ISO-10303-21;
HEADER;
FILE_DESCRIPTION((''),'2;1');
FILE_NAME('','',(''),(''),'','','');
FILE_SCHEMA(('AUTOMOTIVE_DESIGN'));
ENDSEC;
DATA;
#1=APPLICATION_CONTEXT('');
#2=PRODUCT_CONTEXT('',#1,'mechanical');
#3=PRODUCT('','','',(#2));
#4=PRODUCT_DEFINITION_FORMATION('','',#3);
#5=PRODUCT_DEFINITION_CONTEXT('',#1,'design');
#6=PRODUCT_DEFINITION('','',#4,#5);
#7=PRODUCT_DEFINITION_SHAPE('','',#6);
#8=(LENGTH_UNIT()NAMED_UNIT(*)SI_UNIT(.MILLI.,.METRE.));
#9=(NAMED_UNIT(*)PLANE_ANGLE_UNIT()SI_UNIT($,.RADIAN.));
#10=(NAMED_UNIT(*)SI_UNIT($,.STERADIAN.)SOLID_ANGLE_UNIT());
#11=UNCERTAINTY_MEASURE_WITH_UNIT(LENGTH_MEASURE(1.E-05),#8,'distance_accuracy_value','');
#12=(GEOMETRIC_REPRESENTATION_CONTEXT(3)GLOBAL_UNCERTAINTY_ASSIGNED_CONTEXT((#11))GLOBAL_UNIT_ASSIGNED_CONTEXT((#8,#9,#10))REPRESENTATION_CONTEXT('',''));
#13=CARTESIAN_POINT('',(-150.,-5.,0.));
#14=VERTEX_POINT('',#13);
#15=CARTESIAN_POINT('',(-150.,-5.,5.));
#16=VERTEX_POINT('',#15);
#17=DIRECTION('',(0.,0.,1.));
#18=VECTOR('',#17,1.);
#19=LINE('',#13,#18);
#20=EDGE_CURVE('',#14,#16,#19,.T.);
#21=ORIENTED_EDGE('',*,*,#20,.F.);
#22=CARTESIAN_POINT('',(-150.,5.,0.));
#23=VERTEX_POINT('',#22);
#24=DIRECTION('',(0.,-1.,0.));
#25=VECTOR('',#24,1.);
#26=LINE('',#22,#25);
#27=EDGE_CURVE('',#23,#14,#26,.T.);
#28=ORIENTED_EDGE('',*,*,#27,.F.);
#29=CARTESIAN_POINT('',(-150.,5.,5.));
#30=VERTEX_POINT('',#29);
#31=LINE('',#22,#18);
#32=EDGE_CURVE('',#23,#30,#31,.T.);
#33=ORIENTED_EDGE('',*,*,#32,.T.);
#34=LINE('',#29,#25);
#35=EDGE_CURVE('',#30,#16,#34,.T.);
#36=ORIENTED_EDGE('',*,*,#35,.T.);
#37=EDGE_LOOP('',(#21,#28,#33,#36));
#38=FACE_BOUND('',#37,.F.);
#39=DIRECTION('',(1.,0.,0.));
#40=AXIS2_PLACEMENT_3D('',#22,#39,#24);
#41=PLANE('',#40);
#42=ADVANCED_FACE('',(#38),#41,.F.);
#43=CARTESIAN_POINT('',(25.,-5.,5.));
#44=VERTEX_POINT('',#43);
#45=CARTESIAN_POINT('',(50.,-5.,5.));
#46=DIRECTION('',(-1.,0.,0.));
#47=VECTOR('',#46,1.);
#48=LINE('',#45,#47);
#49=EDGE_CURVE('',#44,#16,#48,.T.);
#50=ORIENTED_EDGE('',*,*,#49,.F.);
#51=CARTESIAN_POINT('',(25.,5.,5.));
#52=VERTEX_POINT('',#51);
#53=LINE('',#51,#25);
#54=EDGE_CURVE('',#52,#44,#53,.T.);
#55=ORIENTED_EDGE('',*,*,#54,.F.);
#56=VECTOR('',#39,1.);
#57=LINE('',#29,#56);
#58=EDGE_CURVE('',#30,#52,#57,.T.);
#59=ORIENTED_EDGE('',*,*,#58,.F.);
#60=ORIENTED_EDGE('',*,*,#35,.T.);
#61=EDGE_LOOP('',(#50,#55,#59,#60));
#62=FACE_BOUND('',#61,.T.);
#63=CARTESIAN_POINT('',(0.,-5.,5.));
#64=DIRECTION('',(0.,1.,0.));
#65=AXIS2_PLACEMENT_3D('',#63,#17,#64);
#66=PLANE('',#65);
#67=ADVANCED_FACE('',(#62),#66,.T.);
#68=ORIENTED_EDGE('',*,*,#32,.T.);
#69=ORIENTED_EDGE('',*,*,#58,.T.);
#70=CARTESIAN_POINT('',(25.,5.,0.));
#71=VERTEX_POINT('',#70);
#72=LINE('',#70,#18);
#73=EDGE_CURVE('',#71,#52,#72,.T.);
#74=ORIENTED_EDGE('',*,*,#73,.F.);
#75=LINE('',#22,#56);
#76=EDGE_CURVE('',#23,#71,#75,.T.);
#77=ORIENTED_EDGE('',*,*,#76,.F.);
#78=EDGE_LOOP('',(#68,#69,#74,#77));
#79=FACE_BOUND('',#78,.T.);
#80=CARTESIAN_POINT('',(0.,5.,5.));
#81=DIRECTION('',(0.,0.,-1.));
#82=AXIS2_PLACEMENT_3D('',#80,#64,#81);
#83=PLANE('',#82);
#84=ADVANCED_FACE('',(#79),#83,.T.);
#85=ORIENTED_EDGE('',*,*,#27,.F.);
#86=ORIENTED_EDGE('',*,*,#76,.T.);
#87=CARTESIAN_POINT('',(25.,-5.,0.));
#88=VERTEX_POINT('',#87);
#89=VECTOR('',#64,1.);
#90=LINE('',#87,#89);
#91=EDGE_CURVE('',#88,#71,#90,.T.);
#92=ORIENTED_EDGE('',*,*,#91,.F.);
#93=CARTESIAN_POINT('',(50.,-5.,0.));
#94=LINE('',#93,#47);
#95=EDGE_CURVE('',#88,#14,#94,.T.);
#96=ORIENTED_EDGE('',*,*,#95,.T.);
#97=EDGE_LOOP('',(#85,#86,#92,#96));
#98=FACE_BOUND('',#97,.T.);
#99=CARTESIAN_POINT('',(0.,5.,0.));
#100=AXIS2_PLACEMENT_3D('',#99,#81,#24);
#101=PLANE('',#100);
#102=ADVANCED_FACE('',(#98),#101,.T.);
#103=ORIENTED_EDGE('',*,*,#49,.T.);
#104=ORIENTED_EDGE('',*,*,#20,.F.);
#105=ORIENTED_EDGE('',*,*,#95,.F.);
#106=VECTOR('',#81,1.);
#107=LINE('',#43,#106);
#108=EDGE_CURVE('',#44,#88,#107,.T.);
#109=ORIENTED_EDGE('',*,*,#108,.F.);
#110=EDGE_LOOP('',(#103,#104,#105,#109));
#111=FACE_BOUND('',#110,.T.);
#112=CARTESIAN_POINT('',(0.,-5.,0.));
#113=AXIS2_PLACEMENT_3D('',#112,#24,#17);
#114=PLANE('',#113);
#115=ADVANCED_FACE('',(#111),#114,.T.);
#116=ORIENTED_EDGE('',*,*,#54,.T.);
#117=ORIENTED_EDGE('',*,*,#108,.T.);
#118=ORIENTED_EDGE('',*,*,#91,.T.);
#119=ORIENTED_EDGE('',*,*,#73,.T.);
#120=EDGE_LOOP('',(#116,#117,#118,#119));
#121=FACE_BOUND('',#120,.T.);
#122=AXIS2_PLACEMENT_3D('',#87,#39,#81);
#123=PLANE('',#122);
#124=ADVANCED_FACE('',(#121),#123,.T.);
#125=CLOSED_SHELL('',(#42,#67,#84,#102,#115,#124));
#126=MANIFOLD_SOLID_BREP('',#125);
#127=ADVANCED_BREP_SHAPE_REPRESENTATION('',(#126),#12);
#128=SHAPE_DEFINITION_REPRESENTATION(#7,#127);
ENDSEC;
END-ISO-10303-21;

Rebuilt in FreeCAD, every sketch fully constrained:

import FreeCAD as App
import Part
import Sketcher
from FreeCAD import Vector


def add_polygon(sketch, points):
    """Adds a closed chain of lines whose ends are joined by coincident constraints."""
    first, n = sketch.GeometryCount, len(points)
    for a, b in zip(points, points[1:] + points[:1]):
        sketch.addGeometry(Part.LineSegment(App.Vector(*a, 0), App.Vector(*b, 0)), False)
    for i in range(n):
        sketch.addConstraint(Sketcher.Constraint("Coincident", first + i, 2, first + (i + 1) % n, 1))

doc = App.newDocument("Part")
body = doc.addObject("PartDesign::Body", "Body")

sketch1 = body.newObject("Sketcher::SketchObject", "Sketch")
sketch1.AttachmentSupport = (doc.getObject("XY_Plane"), [""])
sketch1.MapMode = "FlatFace"
add_polygon(sketch1, [(150, -5), (150, 5), (-150, 5), (-150, -5)])
sketch1.addConstraint([
    Sketcher.Constraint("Vertical", 0),
    Sketcher.Constraint("Horizontal", 1),
    Sketcher.Constraint("Vertical", 2),
    Sketcher.Constraint("Horizontal", 3),
    Sketcher.Constraint("Symmetric", 0, 2, 2, 2, -1, 1),
    Sketcher.Constraint("DistanceX", 1, 2, 1, 1, 300.0),
    Sketcher.Constraint("DistanceY", 0, 1, 0, 2, 10.0),
])
pad1 = body.newObject("PartDesign::Pad", "Pad")
pad1.Profile = sketch1
pad1.Length = 5

sketch2 = body.newObject("Sketcher::SketchObject", "Sketch001")
sketch2.AttachmentSupport = (doc.getObject("YZ_Plane"), [""])
sketch2.MapMode = "FlatFace"
sketch2.AttachmentOffset = App.Placement(Vector(0, 0, 150), App.Rotation())
add_polygon(sketch2, [(-5, 5), (-5, 0), (5, 0), (5, 5)])
sketch2.addConstraint([
    Sketcher.Constraint("Vertical", 0),
    Sketcher.Constraint("Horizontal", 1),
    Sketcher.Constraint("Vertical", 2),
    Sketcher.Constraint("Horizontal", 3),
    Sketcher.Constraint("Symmetric", 0, 2, 1, 2, -1, 1),
    Sketcher.Constraint("DistanceX", 1, 1, 1, 2, 10.0),
    Sketcher.Constraint("DistanceY", 0, 2, 0, 1, 5.0),
])
pocket1 = body.newObject("PartDesign::Pocket", "Pocket")
pocket1.Profile = sketch2
pocket1.Length = 150

sketch3 = body.newObject("Sketcher::SketchObject", "Sketch002")
sketch3.AttachmentSupport = (doc.getObject("YZ_Plane"), [""])
sketch3.MapMode = "FlatFace"
add_polygon(sketch3, [(-5, 0), (5, 0), (5, 5), (-5, 5)])
sketch3.addConstraint([
    Sketcher.Constraint("Horizontal", 0),
    Sketcher.Constraint("Vertical", 1),
    Sketcher.Constraint("Horizontal", 2),
    Sketcher.Constraint("Vertical", 3),
    Sketcher.Constraint("Symmetric", 0, 2, 3, 2, -1, 1),
    Sketcher.Constraint("DistanceX", 0, 1, 0, 2, 10.0),
    Sketcher.Constraint("DistanceY", 1, 1, 1, 2, 5.0),
])
pad2 = body.newObject("PartDesign::Pad", "Pad001")
pad2.Profile = sketch3
pad2.Length = 50

sketch4 = body.newObject("Sketcher::SketchObject", "Sketch003")
sketch4.AttachmentSupport = (doc.getObject("YZ_Plane"), [""])
sketch4.MapMode = "FlatFace"
sketch4.AttachmentOffset = App.Placement(Vector(0, 0, 50), App.Rotation())
add_polygon(sketch4, [(5, 0), (5, 5), (-5, 5), (-5, 0)])
sketch4.addConstraint([
    Sketcher.Constraint("Vertical", 0),
    Sketcher.Constraint("Horizontal", 1),
    Sketcher.Constraint("Vertical", 2),
    Sketcher.Constraint("Horizontal", 3),
    Sketcher.Constraint("Symmetric", 2, 2, 3, 2, -1, 1),
    Sketcher.Constraint("DistanceX", 1, 2, 1, 1, 10.0),
    Sketcher.Constraint("DistanceY", 0, 1, 0, 2, 5.0),
])
pocket2 = body.newObject("PartDesign::Pocket", "Pocket001")
pocket2.Profile = sketch4
pocket2.Length = 25

doc.recompute()
